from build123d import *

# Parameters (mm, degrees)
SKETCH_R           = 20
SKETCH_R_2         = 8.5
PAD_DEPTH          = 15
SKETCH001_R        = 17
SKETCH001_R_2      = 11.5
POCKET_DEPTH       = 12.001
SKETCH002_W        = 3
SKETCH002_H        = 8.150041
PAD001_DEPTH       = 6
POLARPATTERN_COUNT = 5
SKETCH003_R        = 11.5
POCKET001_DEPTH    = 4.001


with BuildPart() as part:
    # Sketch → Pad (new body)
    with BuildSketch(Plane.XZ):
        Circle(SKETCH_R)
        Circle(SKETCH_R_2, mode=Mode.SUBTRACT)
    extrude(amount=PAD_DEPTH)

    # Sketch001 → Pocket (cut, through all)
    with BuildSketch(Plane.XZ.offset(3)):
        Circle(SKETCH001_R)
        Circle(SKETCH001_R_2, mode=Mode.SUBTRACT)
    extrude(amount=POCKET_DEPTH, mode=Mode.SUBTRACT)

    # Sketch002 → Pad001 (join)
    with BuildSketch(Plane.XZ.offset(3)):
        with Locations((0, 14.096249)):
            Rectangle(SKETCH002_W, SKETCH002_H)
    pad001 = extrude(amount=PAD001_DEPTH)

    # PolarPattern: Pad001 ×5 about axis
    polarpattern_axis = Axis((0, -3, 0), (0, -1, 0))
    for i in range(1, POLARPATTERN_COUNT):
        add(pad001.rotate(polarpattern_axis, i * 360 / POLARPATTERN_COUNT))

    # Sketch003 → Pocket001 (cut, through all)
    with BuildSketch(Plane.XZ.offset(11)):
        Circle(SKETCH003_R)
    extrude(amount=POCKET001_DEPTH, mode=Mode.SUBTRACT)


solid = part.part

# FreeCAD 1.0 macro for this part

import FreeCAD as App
import Part
import Sketcher
Q = App.Units.Quantity

doc = App.newDocument("Part")
body = doc.addObject("PartDesign::Body", "Body")

# Sketch on XZ plane
sketch1 = body.newObject("Sketcher::SketchObject", "Sketch")
sketch1.AttachmentSupport = (doc.getObject("XZ_Plane"), [""])
sketch1.MapMode = "FlatFace"
sketch1.addGeometry(Part.Circle(App.Vector(0, 0, 0), App.Vector(0, 0, 1), 20), False)
sketch1.addGeometry(Part.Circle(App.Vector(0, 0, 0), App.Vector(0, 0, 1), 8.5), False)
sketch1.addConstraint(Sketcher.Constraint("Coincident", 0, 3, -1, 1))
sketch1.addConstraint(Sketcher.Constraint("Coincident", 1, 3, -1, 1))
sketch1.addConstraint(Sketcher.Constraint("Diameter", 0, Q("40 mm")))
sketch1.addConstraint(Sketcher.Constraint("Diameter", 1, Q("17 mm")))
pad1 = body.newObject("PartDesign::Pad", "Pad")
pad1.Profile = sketch1
pad1.Length = 15

# Sketch on XZ plane
sketch2 = body.newObject("Sketcher::SketchObject", "Sketch001")
sketch2.AttachmentSupport = (doc.getObject("XZ_Plane"), [""])
sketch2.MapMode = "FlatFace"
sketch2.AttachmentOffset = App.Placement(App.Vector(0, 0, 3), App.Rotation())
sketch2.addGeometry(Part.Circle(App.Vector(0, 0, 0), App.Vector(0, 0, 1), 17), False)
sketch2.addGeometry(Part.Circle(App.Vector(0, 0, 0), App.Vector(0, 0, 1), 11.5), False)
sketch2.addConstraint(Sketcher.Constraint("Coincident", 0, 3, -1, 1))
sketch2.addConstraint(Sketcher.Constraint("Coincident", 1, 3, -1, 1))
sketch2.addConstraint(Sketcher.Constraint("Diameter", 0, Q("34 mm")))
sketch2.addConstraint(Sketcher.Constraint("Diameter", 1, Q("23 mm")))
pocket1 = body.newObject("PartDesign::Pocket", "Pocket")
pocket1.Profile = sketch2
pocket1.Type = "ThroughAll"
pocket1.Reversed = True

# Sketch on XZ plane
sketch3 = body.newObject("Sketcher::SketchObject", "Sketch002")
sketch3.AttachmentSupport = (doc.getObject("XZ_Plane"), [""])
sketch3.MapMode = "FlatFace"
sketch3.AttachmentOffset = App.Placement(App.Vector(0, 0, 3), App.Rotation())
sketch3.addGeometry(Part.LineSegment(App.Vector(-1.5, 18.17127, 0), App.Vector(-1.5, 10.021228, 0)), False)
sketch3.addGeometry(Part.LineSegment(App.Vector(-1.5, 10.021228, 0), App.Vector(1.5, 10.021228, 0)), False)
sketch3.addGeometry(Part.LineSegment(App.Vector(1.5, 10.021228, 0), App.Vector(1.5, 18.17127, 0)), False)
sketch3.addGeometry(Part.LineSegment(App.Vector(1.5, 18.17127, 0), App.Vector(-1.5, 18.17127, 0)), False)
sketch3.addConstraint(Sketcher.Constraint("Coincident", 0, 2, 1, 1))
sketch3.addConstraint(Sketcher.Constraint("Coincident", 1, 2, 2, 1))
sketch3.addConstraint(Sketcher.Constraint("Coincident", 2, 2, 3, 1))
sketch3.addConstraint(Sketcher.Constraint("Coincident", 3, 2, 0, 1))
sketch3.addConstraint(Sketcher.Constraint("Vertical", 0))
sketch3.addConstraint(Sketcher.Constraint("Horizontal", 1))
sketch3.addConstraint(Sketcher.Constraint("Vertical", 2))
sketch3.addConstraint(Sketcher.Constraint("Horizontal", 3))
sketch3.addConstraint(Sketcher.Constraint("DistanceX", 1, 1, 1, 2, Q("3 mm")))
sketch3.addConstraint(Sketcher.Constraint("DistanceX", 0, 2, -1, 1, Q("1.5 mm")))
sketch3.addConstraint(Sketcher.Constraint("DistanceY", 0, 2, 0, 1, Q("8.150041 mm")))
sketch3.addConstraint(Sketcher.Constraint("DistanceY", -1, 1, 0, 2, Q("10.021228 mm")))
pad2 = body.newObject("PartDesign::Pad", "Pad001")
pad2.Profile = sketch3
pad2.Length = 6
doc.recompute()

polarpattern = body.newObject("PartDesign::PolarPattern", "PolarPattern")
polarpattern.Originals = [pad2]
polarpattern.Axis = (doc.getObject("Y_Axis"), [""])
polarpattern.Angle = 360
polarpattern.Occurrences = 5
body.Tip = polarpattern

# Sketch on XZ plane
sketch4 = body.newObject("Sketcher::SketchObject", "Sketch003")
sketch4.AttachmentSupport = (doc.getObject("XZ_Plane"), [""])
sketch4.MapMode = "FlatFace"
sketch4.AttachmentOffset = App.Placement(App.Vector(0, 0, 11), App.Rotation())
sketch4.addGeometry(Part.Circle(App.Vector(0, 0, 0), App.Vector(0, 0, 1), 11.5), False)
sketch4.addConstraint(Sketcher.Constraint("Coincident", 0, 3, -1, 1))
sketch4.addConstraint(Sketcher.Constraint("Diameter", 0, Q("23 mm")))
pocket2 = body.newObject("PartDesign::Pocket", "Pocket001")
pocket2.Profile = sketch4
pocket2.Type = "ThroughAll"
pocket2.Reversed = True

doc.recompute()
